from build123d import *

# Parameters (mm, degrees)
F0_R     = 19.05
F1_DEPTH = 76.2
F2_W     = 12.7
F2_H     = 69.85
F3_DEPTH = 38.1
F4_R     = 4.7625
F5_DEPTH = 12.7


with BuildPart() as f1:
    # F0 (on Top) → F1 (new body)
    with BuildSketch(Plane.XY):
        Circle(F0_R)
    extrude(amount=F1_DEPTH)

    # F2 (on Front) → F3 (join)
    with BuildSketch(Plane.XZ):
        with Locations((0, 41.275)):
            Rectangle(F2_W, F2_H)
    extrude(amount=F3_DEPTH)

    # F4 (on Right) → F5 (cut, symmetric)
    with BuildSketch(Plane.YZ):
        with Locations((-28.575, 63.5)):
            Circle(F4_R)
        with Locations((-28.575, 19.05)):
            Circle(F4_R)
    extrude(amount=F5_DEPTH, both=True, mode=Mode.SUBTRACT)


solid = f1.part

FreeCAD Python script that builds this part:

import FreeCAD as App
import Part
import Sketcher
from FreeCAD import Vector
Q = App.Units.Quantity

doc = App.newDocument("Part")
body = doc.addObject("PartDesign::Body", "Body")

# Sketch on XY plane
sketch1 = doc.addObject("Sketcher::SketchObject", "Sketch")
body.addObject(sketch1)
sketch1.AttachmentSupport = (doc.XY_Plane, [""])
sketch1.MapMode = "FlatFace"
sketch1.addGeometry(Part.Circle(Vector(0, 0, 0), Vector(0, 0, 1), 19), False)
sketch1.addConstraint([
    Sketcher.Constraint("Coincident", 0, 3, -1, 1),
    Sketcher.Constraint("Diameter", 0, Q("1.5 in")),
])
pad1 = doc.addObject("PartDesign::Pad", "Pad")
body.addObject(pad1)
pad1.Profile = sketch1
pad1.Length = Q("3 in")

# Sketch on XZ plane
sketch2 = doc.addObject("Sketcher::SketchObject", "Sketch001")
body.addObject(sketch2)
sketch2.AttachmentSupport = (doc.XZ_Plane, [""])
sketch2.MapMode = "FlatFace"
sketch2.addGeometry([
    Part.LineSegment(Vector(-6, 76, 0), Vector(-6, 6, 0)),
    Part.LineSegment(Vector(-6, 6, 0), Vector(6, 6, 0)),
    Part.LineSegment(Vector(6, 6, 0), Vector(6, 76, 0)),
    Part.LineSegment(Vector(6, 76, 0), Vector(-6, 76, 0)),
], False)
sketch2.addConstraint([
    Sketcher.Constraint("Coincident", 0, 2, 1, 1),
    Sketcher.Constraint("Coincident", 1, 2, 2, 1),
    Sketcher.Constraint("Coincident", 2, 2, 3, 1),
    Sketcher.Constraint("Coincident", 3, 2, 0, 1),
    Sketcher.Constraint("Vertical", 0),
    Sketcher.Constraint("Horizontal", 1),
    Sketcher.Constraint("Vertical", 2),
    Sketcher.Constraint("Horizontal", 3),
    Sketcher.Constraint("DistanceX", 1, 1, 1, 2, Q("0.5 in")),
    Sketcher.Constraint("DistanceY", -1, 1, 2, 2, Q("3 in")),
    Sketcher.Constraint("DistanceY", 0, 2, 0, 1, Q("2.75 in")),
    Sketcher.Constraint("DistanceX", 0, 2, -1, 1, Q("0.25 in")),
])
pad2 = doc.addObject("PartDesign::Pad", "Pad001")
body.addObject(pad2)
pad2.Profile = sketch2
pad2.Length = Q("1.5 in")

# Sketch on YZ plane
sketch3 = doc.addObject("Sketcher::SketchObject", "Sketch002")
body.addObject(sketch3)
sketch3.AttachmentSupport = (doc.YZ_Plane, [""])
sketch3.MapMode = "FlatFace"
sketch3.addGeometry([
    Part.Circle(Vector(-28.6, 63.5, 0), Vector(0, 0, 1), 4.8),
    Part.Circle(Vector(-28.6, 19.1, 0), Vector(0, 0, 1), 4.8),
], False)
sketch3.addConstraint([
    Sketcher.Constraint("Equal", 0, 1),
    Sketcher.Constraint("Vertical", 0, 3, 1, 3),
    Sketcher.Constraint("Diameter", 0, Q("0.375 in")),
    Sketcher.Constraint("DistanceY", -1, 1, 0, 3, Q("2.5 in")),
    Sketcher.Constraint("DistanceY", -1, 1, 1, 3, Q("0.75 in")),
    Sketcher.Constraint("DistanceX", 0, 3, -1, 1, Q("1.125 in")),
])
pocket1 = doc.addObject("PartDesign::Pocket", "Pocket")
body.addObject(pocket1)
pocket1.Profile = sketch3
pocket1.Length = Q("1 in")
pocket1.Midplane = True

doc.recompute()
